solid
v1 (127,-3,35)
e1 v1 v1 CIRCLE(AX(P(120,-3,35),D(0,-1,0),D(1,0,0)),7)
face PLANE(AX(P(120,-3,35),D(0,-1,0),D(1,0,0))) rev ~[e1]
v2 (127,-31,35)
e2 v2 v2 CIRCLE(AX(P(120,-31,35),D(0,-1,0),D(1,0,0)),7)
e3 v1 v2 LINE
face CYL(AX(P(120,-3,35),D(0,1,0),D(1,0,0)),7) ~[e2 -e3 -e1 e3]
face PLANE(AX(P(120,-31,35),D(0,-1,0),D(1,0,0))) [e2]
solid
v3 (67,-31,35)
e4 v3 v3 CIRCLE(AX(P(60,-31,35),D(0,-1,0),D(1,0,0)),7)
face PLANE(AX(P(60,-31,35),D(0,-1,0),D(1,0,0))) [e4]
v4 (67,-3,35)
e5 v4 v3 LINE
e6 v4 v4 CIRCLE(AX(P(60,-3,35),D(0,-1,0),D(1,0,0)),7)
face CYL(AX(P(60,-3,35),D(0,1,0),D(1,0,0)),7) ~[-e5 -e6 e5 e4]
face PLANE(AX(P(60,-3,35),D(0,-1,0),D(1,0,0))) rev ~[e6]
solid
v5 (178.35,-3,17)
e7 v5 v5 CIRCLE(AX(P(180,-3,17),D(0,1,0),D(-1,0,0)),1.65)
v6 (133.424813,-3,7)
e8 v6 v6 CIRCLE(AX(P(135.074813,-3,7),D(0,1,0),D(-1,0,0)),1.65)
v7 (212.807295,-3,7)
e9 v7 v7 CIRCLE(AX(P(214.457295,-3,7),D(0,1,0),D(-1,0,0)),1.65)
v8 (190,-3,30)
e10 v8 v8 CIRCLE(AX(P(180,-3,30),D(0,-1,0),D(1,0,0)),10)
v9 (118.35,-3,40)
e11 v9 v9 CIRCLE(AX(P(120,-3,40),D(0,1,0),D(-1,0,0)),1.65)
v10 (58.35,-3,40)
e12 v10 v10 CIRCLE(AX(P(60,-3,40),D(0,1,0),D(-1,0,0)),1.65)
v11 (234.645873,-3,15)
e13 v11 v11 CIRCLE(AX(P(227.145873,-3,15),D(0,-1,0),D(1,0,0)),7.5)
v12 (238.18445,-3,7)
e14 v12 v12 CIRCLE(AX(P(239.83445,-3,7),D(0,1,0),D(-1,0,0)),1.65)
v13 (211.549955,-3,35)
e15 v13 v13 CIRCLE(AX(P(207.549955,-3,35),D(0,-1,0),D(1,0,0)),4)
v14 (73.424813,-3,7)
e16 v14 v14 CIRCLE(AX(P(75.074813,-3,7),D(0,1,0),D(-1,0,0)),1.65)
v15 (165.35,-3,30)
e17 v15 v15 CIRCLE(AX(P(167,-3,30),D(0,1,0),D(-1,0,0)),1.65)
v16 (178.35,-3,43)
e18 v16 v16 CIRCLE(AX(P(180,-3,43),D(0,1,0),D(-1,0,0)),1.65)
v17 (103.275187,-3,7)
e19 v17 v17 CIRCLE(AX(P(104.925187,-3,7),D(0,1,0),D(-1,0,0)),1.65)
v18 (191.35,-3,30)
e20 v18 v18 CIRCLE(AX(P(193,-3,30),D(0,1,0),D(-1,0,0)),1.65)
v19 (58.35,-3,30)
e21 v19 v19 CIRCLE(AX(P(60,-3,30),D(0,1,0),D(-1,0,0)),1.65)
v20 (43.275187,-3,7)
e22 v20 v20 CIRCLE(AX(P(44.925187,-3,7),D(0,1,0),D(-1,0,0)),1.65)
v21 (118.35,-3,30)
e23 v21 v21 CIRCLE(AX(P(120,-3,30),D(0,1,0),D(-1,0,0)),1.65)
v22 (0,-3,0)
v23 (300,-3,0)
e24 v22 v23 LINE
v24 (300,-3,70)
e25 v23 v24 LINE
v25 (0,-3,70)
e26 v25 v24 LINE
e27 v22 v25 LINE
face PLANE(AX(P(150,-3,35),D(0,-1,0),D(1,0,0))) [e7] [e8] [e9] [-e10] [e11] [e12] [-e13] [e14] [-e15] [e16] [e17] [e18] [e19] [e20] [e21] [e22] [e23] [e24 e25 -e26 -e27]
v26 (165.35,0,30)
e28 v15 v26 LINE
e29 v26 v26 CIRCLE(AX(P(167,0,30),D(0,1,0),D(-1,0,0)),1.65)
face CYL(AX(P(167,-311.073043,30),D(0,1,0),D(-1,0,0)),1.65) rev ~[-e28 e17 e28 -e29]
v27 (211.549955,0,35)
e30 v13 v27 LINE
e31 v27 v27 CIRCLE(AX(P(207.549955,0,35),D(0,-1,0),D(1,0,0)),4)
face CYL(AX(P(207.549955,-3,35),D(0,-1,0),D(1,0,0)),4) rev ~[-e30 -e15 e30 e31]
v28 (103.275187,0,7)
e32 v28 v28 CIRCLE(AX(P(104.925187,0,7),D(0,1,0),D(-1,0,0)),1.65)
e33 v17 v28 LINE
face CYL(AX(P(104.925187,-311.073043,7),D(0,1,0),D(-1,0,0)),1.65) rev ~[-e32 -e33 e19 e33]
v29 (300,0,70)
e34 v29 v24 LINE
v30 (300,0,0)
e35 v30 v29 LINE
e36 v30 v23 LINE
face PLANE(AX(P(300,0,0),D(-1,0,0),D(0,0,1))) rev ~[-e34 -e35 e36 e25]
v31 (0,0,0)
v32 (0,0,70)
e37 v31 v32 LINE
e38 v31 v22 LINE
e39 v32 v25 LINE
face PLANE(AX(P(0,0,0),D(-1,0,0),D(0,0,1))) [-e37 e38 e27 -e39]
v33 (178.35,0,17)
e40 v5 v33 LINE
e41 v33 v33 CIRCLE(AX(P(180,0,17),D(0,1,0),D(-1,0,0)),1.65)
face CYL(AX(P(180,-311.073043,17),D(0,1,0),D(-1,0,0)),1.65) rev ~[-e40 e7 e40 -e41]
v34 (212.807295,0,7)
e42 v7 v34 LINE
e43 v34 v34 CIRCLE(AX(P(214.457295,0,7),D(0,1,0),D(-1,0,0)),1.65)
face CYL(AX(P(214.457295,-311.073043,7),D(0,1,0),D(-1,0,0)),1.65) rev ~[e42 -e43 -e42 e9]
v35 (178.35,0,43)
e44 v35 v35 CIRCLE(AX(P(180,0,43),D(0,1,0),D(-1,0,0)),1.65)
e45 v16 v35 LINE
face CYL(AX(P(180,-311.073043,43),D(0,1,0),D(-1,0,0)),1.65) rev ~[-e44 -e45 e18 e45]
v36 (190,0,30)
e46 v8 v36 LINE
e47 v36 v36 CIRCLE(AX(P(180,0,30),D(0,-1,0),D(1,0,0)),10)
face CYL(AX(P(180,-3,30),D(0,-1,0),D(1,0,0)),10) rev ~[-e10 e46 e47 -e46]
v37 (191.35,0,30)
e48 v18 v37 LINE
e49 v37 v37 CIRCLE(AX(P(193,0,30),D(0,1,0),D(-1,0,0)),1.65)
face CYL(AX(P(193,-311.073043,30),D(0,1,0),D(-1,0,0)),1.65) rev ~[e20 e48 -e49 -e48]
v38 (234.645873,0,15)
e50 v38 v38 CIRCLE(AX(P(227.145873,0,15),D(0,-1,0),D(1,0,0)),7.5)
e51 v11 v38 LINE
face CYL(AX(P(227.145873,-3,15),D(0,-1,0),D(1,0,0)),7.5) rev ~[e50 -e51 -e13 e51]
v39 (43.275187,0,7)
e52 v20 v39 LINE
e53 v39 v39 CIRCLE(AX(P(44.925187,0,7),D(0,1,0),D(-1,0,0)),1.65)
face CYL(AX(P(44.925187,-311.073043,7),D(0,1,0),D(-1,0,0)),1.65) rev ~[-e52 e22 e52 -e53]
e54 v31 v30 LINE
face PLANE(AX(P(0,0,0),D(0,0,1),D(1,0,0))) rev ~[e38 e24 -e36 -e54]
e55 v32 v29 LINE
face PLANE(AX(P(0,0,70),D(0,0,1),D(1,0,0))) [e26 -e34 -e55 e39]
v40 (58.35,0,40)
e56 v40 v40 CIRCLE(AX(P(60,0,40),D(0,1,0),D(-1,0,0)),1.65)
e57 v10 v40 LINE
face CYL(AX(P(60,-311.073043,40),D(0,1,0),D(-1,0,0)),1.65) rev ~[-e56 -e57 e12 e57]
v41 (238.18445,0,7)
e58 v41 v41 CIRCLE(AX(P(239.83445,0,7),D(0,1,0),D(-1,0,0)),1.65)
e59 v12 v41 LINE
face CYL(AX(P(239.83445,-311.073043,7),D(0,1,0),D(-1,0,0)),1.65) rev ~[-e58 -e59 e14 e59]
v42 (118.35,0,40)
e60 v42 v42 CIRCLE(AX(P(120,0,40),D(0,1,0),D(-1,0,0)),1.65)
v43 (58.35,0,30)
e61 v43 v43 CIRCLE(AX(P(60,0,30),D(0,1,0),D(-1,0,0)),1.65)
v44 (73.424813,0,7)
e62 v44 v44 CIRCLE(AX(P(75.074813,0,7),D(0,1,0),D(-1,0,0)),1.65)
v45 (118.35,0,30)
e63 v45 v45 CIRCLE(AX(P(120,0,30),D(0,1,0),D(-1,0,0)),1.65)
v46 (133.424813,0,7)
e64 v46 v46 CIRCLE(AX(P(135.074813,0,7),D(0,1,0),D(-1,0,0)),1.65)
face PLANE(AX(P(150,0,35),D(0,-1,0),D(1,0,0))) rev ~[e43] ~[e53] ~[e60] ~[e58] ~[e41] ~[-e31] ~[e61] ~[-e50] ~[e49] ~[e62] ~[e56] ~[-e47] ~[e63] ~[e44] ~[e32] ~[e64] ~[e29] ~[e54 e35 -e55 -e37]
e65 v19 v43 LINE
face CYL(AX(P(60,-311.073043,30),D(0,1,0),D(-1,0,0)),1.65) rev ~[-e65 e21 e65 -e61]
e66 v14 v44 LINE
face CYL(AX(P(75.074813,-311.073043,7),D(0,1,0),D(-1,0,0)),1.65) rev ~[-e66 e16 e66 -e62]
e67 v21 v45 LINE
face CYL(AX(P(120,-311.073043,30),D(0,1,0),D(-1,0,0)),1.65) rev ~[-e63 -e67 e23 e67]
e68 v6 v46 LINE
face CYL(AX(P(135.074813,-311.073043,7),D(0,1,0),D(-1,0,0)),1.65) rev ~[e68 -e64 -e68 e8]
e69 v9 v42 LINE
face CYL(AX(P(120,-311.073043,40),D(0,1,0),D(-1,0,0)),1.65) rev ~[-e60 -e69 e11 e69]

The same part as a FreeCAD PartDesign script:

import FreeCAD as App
import Part
import Sketcher

doc = App.newDocument("Part")
body = doc.addObject("PartDesign::Body", "Body")

# Sketch on XZ plane
sketch1 = body.newObject("Sketcher::SketchObject", "Sketch")
sketch1.AttachmentSupport = (doc.getObject("XZ_Plane"), [""])
sketch1.MapMode = "FlatFace"
sketch1.addGeometry(Part.LineSegment(App.Vector(0, 70, 0), App.Vector(0, 0, 0)), False)
sketch1.addGeometry(Part.LineSegment(App.Vector(0, 0, 0), App.Vector(300, 0, 0)), False)
sketch1.addGeometry(Part.LineSegment(App.Vector(300, 0, 0), App.Vector(300, 70, 0)), False)
sketch1.addGeometry(Part.LineSegment(App.Vector(300, 70, 0), App.Vector(0, 70, 0)), False)
sketch1.addConstraint(Sketcher.Constraint("Coincident", 0, 2, 1, 1))
sketch1.addConstraint(Sketcher.Constraint("Coincident", 1, 2, 2, 1))
sketch1.addConstraint(Sketcher.Constraint("Coincident", 2, 2, 3, 1))
sketch1.addConstraint(Sketcher.Constraint("Coincident", 3, 2, 0, 1))
sketch1.addConstraint(Sketcher.Constraint("Vertical", 0))
sketch1.addConstraint(Sketcher.Constraint("Horizontal", 1))
sketch1.addConstraint(Sketcher.Constraint("Vertical", 2))
sketch1.addConstraint(Sketcher.Constraint("Horizontal", 3))
sketch1.addConstraint(Sketcher.Constraint("Coincident", 0, 2, -1, 1))
sketch1.addConstraint(Sketcher.Constraint("DistanceX", 1, 1, 1, 2, 300.0))
sketch1.addConstraint(Sketcher.Constraint("DistanceY", 0, 2, 0, 1, 70.0))
pad1 = body.newObject("PartDesign::Pad", "Pad")
pad1.Profile = sketch1
pad1.Length = 3

# Sketch on XZ plane
sketch2 = body.newObject("Sketcher::SketchObject", "Sketch001")
sketch2.AttachmentSupport = (doc.getObject("XZ_Plane"), [""])
sketch2.MapMode = "FlatFace"
sketch2.AttachmentOffset = App.Placement(App.Vector(0, 0, 3), App.Rotation())
sketch2.addGeometry(Part.Circle(App.Vector(60, 40, 0), App.Vector(0, 0, 1), 1.6), False)
sketch2.addGeometry(Part.Circle(App.Vector(60, 30, 0), App.Vector(0, 0, 1), 1.6), False)
sketch2.addGeometry(Part.Circle(App.Vector(120, 40, 0), App.Vector(0, 0, 1), 1.6), False)
sketch2.addGeometry(Part.Circle(App.Vector(120, 30, 0), App.Vector(0, 0, 1), 1.6), False)
sketch2.addConstraint(Sketcher.Constraint("Equal", 0, 1))
sketch2.addConstraint(Sketcher.Constraint("Equal", 1, 2))
sketch2.addConstraint(Sketcher.Constraint("Equal", 2, 3))
sketch2.addConstraint(Sketcher.Constraint("Horizontal", 0, 3, 2, 3))
sketch2.addConstraint(Sketcher.Constraint("Horizontal", 1, 3, 3, 3))
sketch2.addConstraint(Sketcher.Constraint("Vertical", 0, 3, 1, 3))
sketch2.addConstraint(Sketcher.Constraint("Vertical", 2, 3, 3, 3))
sketch2.addConstraint(Sketcher.Constraint("Diameter", 0, 3.3))
sketch2.addConstraint(Sketcher.Constraint("DistanceX", -1, 1, 0, 3, 60.0))
sketch2.addConstraint(Sketcher.Constraint("DistanceY", -1, 1, 0, 3, 40.0))
sketch2.addConstraint(Sketcher.Constraint("DistanceY", -1, 1, 1, 3, 30.0))
sketch2.addConstraint(Sketcher.Constraint("DistanceX", -1, 1, 2, 3, 120.0))
doc.recompute()
hole = body.newObject("PartDesign::Hole", "Hole")
hole.Profile = sketch2
hole.ThreadType = "None"
hole.Diameter = 3.3
hole.DepthType = "ThroughAll"

# Sketch on XZ plane
sketch3 = body.newObject("Sketcher::SketchObject", "Sketch002")
sketch3.AttachmentSupport = (doc.getObject("XZ_Plane"), [""])
sketch3.MapMode = "FlatFace"
sketch3.AttachmentOffset = App.Placement(App.Vector(0, 0, 3), App.Rotation())
sketch3.addGeometry(Part.Circle(App.Vector(167, 30, 0), App.Vector(0, 0, 1), 1.6), False)
sketch3.addGeometry(Part.Circle(App.Vector(180, 43, 0), App.Vector(0, 0, 1), 1.6), False)
sketch3.addGeometry(Part.Circle(App.Vector(193, 30, 0), App.Vector(0, 0, 1), 1.6), False)
sketch3.addGeometry(Part.Circle(App.Vector(180, 17, 0), App.Vector(0, 0, 1), 1.6), False)
sketch3.addConstraint(Sketcher.Constraint("Equal", 0, 1))
sketch3.addConstraint(Sketcher.Constraint("Equal", 1, 2))
sketch3.addConstraint(Sketcher.Constraint("Equal", 2, 3))
sketch3.addConstraint(Sketcher.Constraint("Horizontal", 0, 3, 2, 3))
sketch3.addConstraint(Sketcher.Constraint("Vertical", 1, 3, 3, 3))
sketch3.addConstraint(Sketcher.Constraint("Diameter", 0, 3.3))
sketch3.addConstraint(Sketcher.Constraint("DistanceX", -1, 1, 0, 3, 167.0))
sketch3.addConstraint(Sketcher.Constraint("DistanceY", -1, 1, 0, 3, 30.0))
sketch3.addConstraint(Sketcher.Constraint("DistanceX", -1, 1, 1, 3, 180.0))
sketch3.addConstraint(Sketcher.Constraint("DistanceY", -1, 1, 1, 3, 43.0))
sketch3.addConstraint(Sketcher.Constraint("DistanceX", -1, 1, 2, 3, 193.0))
sketch3.addConstraint(Sketcher.Constraint("DistanceY", -1, 1, 3, 3, 17.0))
doc.recompute()
hole2 = body.newObject("PartDesign::Hole", "Hole001")
hole2.Profile = sketch3
hole2.ThreadType = "None"
hole2.Diameter = 3.3
hole2.DepthType = "ThroughAll"

# Sketch on XZ plane
sketch4 = body.newObject("Sketcher::SketchObject", "Sketch003")
sketch4.AttachmentSupport = (doc.getObject("XZ_Plane"), [""])
sketch4.MapMode = "FlatFace"
sketch4.AttachmentOffset = App.Placement(App.Vector(0, 0, 3), App.Rotation())
sketch4.addGeometry(Part.Circle(App.Vector(180, 30, 0), App.Vector(0, 0, 1), 10), False)
sketch4.addConstraint(Sketcher.Constraint("Diameter", 0, 20.0))
sketch4.addConstraint(Sketcher.Constraint("DistanceX", -1, 1, 0, 3, 180.0))
sketch4.addConstraint(Sketcher.Constraint("DistanceY", -1, 1, 0, 3, 30.0))
pocket1 = body.newObject("PartDesign::Pocket", "Pocket")
pocket1.Profile = sketch4
pocket1.Type = "ThroughAll"

# Sketch on XZ plane
sketch5 = body.newObject("Sketcher::SketchObject", "Sketch004")
sketch5.AttachmentSupport = (doc.getObject("XZ_Plane"), [""])
sketch5.MapMode = "FlatFace"
sketch5.AttachmentOffset = App.Placement(App.Vector(0, 0, 3), App.Rotation())
sketch5.addGeometry(Part.Circle(App.Vector(207.5, 35, 0), App.Vector(0, 0, 1), 4), False)
sketch5.addGeometry(Part.Circle(App.Vector(227.1, 15, 0), App.Vector(0, 0, 1), 7.5), False)
sketch5.addConstraint(Sketcher.Constraint("Diameter", 0, 8.0))
sketch5.addConstraint(Sketcher.Constraint("Diameter", 1, 15.0))
sketch5.addConstraint(Sketcher.Constraint("DistanceY", -1, 1, 0, 3, 35.0))
sketch5.addConstraint(Sketcher.Constraint("DistanceY", -1, 1, 1, 3, 15.0))
sketch5.addConstraint(Sketcher.Constraint("DistanceX", -1, 1, 0, 3, 207.549955))
sketch5.addConstraint(Sketcher.Constraint("DistanceX", -1, 1, 1, 3, 227.145873))
pocket2 = body.newObject("PartDesign::Pocket", "Pocket001")
pocket2.Profile = sketch5
pocket2.Type = "ThroughAll"

# Sketch on XZ plane
sketch6 = body.newObject("Sketcher::SketchObject", "Sketch005")
sketch6.AttachmentSupport = (doc.getObject("XZ_Plane"), [""])
sketch6.MapMode = "FlatFace"
sketch6.AttachmentOffset = App.Placement(App.Vector(0, 0, 3), App.Rotation())
sketch6.addGeometry(Part.Circle(App.Vector(44.9, 7, 0), App.Vector(0, 0, 1), 1.6), False)
sketch6.addGeometry(Part.Circle(App.Vector(75.1, 7, 0), App.Vector(0, 0, 1), 1.6), False)
sketch6.addGeometry(Part.Circle(App.Vector(104.9, 7, 0), App.Vector(0, 0, 1), 1.6), False)
sketch6.addGeometry(Part.Circle(App.Vector(135.1, 7, 0), App.Vector(0, 0, 1), 1.6), False)
sketch6.addGeometry(Part.Circle(App.Vector(214.5, 7, 0), App.Vector(0, 0, 1), 1.6), False)
sketch6.addGeometry(Part.Circle(App.Vector(239.8, 7, 0), App.Vector(0, 0, 1), 1.6), False)
sketch6.addConstraint(Sketcher.Constraint("Equal", 0, 1))
sketch6.addConstraint(Sketcher.Constraint("Equal", 1, 2))
sketch6.addConstraint(Sketcher.Constraint("Equal", 2, 3))
sketch6.addConstraint(Sketcher.Constraint("Equal", 3, 4))
sketch6.addConstraint(Sketcher.Constraint("Equal", 4, 5))
sketch6.addConstraint(Sketcher.Constraint("Horizontal", 0, 3, 1, 3))
sketch6.addConstraint(Sketcher.Constraint("Horizontal", 1, 3, 2, 3))
sketch6.addConstraint(Sketcher.Constraint("Horizontal", 2, 3, 3, 3))
sketch6.addConstraint(Sketcher.Constraint("Horizontal", 3, 3, 4, 3))
sketch6.addConstraint(Sketcher.Constraint("Horizontal", 4, 3, 5, 3))
sketch6.addConstraint(Sketcher.Constraint("Diameter", 0, 3.3))
sketch6.addConstraint(Sketcher.Constraint("DistanceY", -1, 1, 0, 3, 7.0))
sketch6.addConstraint(Sketcher.Constraint("DistanceX", 0, 3, 2, 3, 60.0))
sketch6.addConstraint(Sketcher.Constraint("DistanceX", 1, 3, 3, 3, 60.0))
sketch6.addConstraint(Sketcher.Constraint("DistanceX", -1, 1, 5, 3, 239.83445))
sketch6.addConstraint(Sketcher.Constraint("DistanceX", 3, 3, 4, 3, 79.382482))
sketch6.addConstraint(Sketcher.Constraint("DistanceX", 2, 3, 4, 3, 109.532108))
sketch6.addConstraint(Sketcher.Constraint("DistanceX", -1, 1, 0, 3, 44.925187))
doc.recompute()
hole3 = body.newObject("PartDesign::Hole", "Hole002")
hole3.Profile = sketch6
hole3.ThreadType = "None"
hole3.Diameter = 3.3
hole3.DepthType = "ThroughAll"
body2 = doc.addObject("PartDesign::Body", "Body001")

# Sketch on XZ plane
sketch7 = body2.newObject("Sketcher::SketchObject", "Sketch006")
sketch7.AttachmentSupport = (doc.getObject("XZ_Plane001"), [""])
sketch7.MapMode = "FlatFace"
sketch7.AttachmentOffset = App.Placement(App.Vector(0, 0, 3), App.Rotation())
sketch7.addGeometry(Part.Circle(App.Vector(60, 35, 0), App.Vector(0, 0, 1), 7), False)
sketch7.addConstraint(Sketcher.Constraint("Diameter", 0, 14.0))
sketch7.addConstraint(Sketcher.Constraint("DistanceX", -1, 1, 0, 3, 60.0))
sketch7.addConstraint(Sketcher.Constraint("DistanceY", -1, 1, 0, 3, 35.0))
pad2 = body2.newObject("PartDesign::Pad", "Pad001")
pad2.Profile = sketch7
pad2.Length = 28
body3 = doc.addObject("PartDesign::Body", "Body002")

# Sketch on XZ plane
sketch8 = body3.newObject("Sketcher::SketchObject", "Sketch007")
sketch8.AttachmentSupport = (doc.getObject("XZ_Plane002"), [""])
sketch8.MapMode = "FlatFace"
sketch8.AttachmentOffset = App.Placement(App.Vector(0, 0, 3), App.Rotation())
sketch8.addGeometry(Part.Circle(App.Vector(120, 35, 0), App.Vector(0, 0, 1), 7), False)
sketch8.addConstraint(Sketcher.Constraint("Diameter", 0, 14.0))
sketch8.addConstraint(Sketcher.Constraint("DistanceX", -1, 1, 0, 3, 120.0))
sketch8.addConstraint(Sketcher.Constraint("DistanceY", -1, 1, 0, 3, 35.0))
pad3 = body3.newObject("PartDesign::Pad", "Pad002")
pad3.Profile = sketch8
pad3.Length = 28

doc.recompute()
